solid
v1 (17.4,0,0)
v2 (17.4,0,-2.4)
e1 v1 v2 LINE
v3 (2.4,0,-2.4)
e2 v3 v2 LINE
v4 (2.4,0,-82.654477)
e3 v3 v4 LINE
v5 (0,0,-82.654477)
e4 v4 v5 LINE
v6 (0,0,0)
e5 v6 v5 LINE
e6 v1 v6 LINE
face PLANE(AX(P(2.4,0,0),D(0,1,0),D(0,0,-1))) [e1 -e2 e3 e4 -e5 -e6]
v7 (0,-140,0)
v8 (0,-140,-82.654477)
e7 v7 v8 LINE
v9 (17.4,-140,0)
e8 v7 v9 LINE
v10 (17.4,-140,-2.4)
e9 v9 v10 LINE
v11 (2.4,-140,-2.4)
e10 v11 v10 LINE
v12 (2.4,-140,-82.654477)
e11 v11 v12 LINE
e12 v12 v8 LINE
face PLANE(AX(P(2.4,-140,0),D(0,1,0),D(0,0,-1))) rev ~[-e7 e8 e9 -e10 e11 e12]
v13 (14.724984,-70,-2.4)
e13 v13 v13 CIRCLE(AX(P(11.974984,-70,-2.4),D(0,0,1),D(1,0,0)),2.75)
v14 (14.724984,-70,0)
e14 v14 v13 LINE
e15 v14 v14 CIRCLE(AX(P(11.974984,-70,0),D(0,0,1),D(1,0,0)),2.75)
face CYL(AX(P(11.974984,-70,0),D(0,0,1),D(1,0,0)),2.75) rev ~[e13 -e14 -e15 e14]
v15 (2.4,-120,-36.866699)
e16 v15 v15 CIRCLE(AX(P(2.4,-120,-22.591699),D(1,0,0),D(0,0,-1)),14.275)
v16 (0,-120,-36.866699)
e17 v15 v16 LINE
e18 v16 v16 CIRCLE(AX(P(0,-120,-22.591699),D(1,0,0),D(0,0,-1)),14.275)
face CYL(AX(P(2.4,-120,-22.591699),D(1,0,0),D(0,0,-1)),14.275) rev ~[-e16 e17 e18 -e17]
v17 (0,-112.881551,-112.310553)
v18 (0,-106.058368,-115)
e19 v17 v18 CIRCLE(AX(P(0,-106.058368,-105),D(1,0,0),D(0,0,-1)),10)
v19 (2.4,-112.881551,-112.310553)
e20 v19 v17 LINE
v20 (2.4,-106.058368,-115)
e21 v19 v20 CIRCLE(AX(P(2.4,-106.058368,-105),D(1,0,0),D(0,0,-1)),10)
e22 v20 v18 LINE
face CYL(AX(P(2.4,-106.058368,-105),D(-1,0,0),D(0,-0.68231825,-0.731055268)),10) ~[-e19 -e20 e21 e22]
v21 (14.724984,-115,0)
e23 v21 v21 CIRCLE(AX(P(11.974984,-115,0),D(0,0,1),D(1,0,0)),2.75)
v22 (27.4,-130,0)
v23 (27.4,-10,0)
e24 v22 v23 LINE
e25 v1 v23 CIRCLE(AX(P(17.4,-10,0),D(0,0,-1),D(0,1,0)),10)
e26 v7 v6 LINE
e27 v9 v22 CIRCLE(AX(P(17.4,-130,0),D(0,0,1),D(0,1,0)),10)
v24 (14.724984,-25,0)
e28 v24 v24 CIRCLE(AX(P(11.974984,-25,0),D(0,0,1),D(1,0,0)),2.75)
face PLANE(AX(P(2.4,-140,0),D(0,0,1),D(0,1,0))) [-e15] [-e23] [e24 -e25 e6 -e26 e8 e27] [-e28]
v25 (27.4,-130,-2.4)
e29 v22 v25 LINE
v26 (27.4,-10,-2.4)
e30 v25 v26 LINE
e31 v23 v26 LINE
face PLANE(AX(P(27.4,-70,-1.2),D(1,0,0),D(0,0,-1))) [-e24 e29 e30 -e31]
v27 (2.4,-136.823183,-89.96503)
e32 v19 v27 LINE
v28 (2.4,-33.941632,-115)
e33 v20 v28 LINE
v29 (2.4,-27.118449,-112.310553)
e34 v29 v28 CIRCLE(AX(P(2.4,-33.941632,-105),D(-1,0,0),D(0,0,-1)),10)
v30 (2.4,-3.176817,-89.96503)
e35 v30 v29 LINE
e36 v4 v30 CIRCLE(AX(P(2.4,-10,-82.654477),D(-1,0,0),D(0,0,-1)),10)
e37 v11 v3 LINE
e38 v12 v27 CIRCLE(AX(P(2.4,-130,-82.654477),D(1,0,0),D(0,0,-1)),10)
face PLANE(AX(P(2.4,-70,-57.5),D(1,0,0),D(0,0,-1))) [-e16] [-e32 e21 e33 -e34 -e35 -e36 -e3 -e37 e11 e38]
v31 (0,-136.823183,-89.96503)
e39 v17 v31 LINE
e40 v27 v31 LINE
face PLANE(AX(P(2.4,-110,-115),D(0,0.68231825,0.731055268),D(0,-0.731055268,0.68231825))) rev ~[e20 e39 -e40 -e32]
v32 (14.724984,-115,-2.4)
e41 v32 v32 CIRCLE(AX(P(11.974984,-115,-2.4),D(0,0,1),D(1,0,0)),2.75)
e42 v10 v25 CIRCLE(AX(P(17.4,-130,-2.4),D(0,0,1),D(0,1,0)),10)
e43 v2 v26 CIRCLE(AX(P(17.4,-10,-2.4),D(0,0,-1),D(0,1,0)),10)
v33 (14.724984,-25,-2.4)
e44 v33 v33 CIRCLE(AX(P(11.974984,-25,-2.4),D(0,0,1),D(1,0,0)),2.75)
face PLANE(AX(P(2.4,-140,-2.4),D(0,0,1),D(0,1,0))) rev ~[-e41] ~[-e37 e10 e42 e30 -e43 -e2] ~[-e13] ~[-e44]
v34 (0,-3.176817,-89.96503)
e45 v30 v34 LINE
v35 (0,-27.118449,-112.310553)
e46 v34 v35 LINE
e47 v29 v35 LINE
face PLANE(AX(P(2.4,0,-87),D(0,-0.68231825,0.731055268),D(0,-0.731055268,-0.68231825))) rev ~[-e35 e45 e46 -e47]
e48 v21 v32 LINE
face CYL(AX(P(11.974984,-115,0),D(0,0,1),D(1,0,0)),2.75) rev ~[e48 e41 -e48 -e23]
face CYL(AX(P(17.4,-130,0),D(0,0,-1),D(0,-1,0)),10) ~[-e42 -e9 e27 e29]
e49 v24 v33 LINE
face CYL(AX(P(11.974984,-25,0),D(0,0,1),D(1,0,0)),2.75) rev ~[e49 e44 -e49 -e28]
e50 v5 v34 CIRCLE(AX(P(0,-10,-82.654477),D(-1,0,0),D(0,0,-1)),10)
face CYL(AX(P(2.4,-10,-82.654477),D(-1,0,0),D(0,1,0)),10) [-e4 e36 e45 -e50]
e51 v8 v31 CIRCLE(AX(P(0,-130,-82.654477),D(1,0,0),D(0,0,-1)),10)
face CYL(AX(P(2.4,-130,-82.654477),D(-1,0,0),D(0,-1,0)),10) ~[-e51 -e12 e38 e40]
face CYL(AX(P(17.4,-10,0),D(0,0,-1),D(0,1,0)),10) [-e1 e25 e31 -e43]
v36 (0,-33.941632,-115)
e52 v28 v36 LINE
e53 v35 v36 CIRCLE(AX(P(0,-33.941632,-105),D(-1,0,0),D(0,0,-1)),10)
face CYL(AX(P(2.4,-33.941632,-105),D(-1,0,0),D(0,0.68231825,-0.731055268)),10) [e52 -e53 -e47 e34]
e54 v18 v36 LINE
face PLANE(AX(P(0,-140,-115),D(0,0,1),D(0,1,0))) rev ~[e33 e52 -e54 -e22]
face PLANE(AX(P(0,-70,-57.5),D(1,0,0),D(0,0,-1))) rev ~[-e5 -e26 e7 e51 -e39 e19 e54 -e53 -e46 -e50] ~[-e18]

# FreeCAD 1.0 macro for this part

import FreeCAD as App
import Part
import Sketcher
from FreeCAD import Vector


def edges_at(feature, points):
    """Names of the edges that pass closest to the given points."""
    edges = feature.Shape.Edges
    near = lambda p: min(range(len(edges)), key=lambda i: edges[i].distToShape(Part.Vertex(*p))[0])
    return sorted({f"Edge{near(p) + 1}" for p in points})

doc = App.newDocument("Part")
body = doc.addObject("PartDesign::Body", "Body")

# Sketch on YZ plane
sketch1 = body.newObject("Sketcher::SketchObject", "Sketch")
sketch1.AttachmentSupport = (doc.getObject("YZ_Plane"), [""])
sketch1.MapMode = "FlatFace"
sketch1.addGeometry(Part.LineSegment(Vector(0, 0, 0), Vector(-140, 0, 0)), False)
sketch1.addGeometry(Part.LineSegment(Vector(-140, 0, 0), Vector(-140, -115, 0)), False)
sketch1.addGeometry(Part.LineSegment(Vector(-140, -115, 0), Vector(0, -115, 0)), False)
sketch1.addGeometry(Part.LineSegment(Vector(0, -115, 0), Vector(0, 0, 0)), False)
sketch1.addConstraint(Sketcher.Constraint("Coincident", 0, 2, 1, 1))
sketch1.addConstraint(Sketcher.Constraint("Coincident", 1, 2, 2, 1))
sketch1.addConstraint(Sketcher.Constraint("Coincident", 2, 2, 3, 1))
sketch1.addConstraint(Sketcher.Constraint("Coincident", 3, 2, 0, 1))
sketch1.addConstraint(Sketcher.Constraint("Horizontal", 0))
sketch1.addConstraint(Sketcher.Constraint("Vertical", 1))
sketch1.addConstraint(Sketcher.Constraint("Horizontal", 2))
sketch1.addConstraint(Sketcher.Constraint("Vertical", 3))
sketch1.addConstraint(Sketcher.Constraint("Coincident", 3, 2, -1, 1))
sketch1.addConstraint(Sketcher.Constraint("DistanceX", 0, 2, 0, 1, 140.0))
sketch1.addConstraint(Sketcher.Constraint("DistanceY", 1, 2, 1, 1, 115.0))
pad1 = body.newObject("PartDesign::Pad", "Pad")
pad1.Profile = sketch1
pad1.Length = 2.4

# Sketch on YZ plane
sketch2 = body.newObject("Sketcher::SketchObject", "Sketch001")
sketch2.AttachmentSupport = (doc.getObject("YZ_Plane"), [""])
sketch2.MapMode = "FlatFace"
sketch2.AttachmentOffset = App.Placement(Vector(0, 0, 2.4), App.Rotation())
sketch2.addGeometry(Part.LineSegment(Vector(0, -87, 0), Vector(-30, -115, 0)), False)
sketch2.addGeometry(Part.LineSegment(Vector(-30, -115, 0), Vector(-33, -143, 0)), False)
sketch2.addGeometry(Part.LineSegment(Vector(-33, -143, 0), Vector(15, -143, 0)), False)
sketch2.addGeometry(Part.LineSegment(Vector(15, -143, 0), Vector(0, -87, 0)), False)
sketch2.addGeometry(Part.LineSegment(Vector(-110, -115, 0), Vector(-140, -87, 0)), False)
sketch2.addGeometry(Part.LineSegment(Vector(-140, -87, 0), Vector(-153, -87, 0)), False)
sketch2.addGeometry(Part.LineSegment(Vector(-153, -87, 0), Vector(-153, -136, 0)), False)
sketch2.addGeometry(Part.LineSegment(Vector(-153, -136, 0), Vector(-110, -115, 0)), False)
sketch2.addConstraint(Sketcher.Constraint("Coincident", 0, 2, 1, 1))
sketch2.addConstraint(Sketcher.Constraint("Coincident", 1, 2, 2, 1))
sketch2.addConstraint(Sketcher.Constraint("Coincident", 2, 2, 3, 1))
sketch2.addConstraint(Sketcher.Constraint("Coincident", 3, 2, 0, 1))
sketch2.addConstraint(Sketcher.Constraint("Coincident", 4, 2, 5, 1))
sketch2.addConstraint(Sketcher.Constraint("Coincident", 5, 2, 6, 1))
sketch2.addConstraint(Sketcher.Constraint("Coincident", 6, 2, 7, 1))
sketch2.addConstraint(Sketcher.Constraint("Coincident", 7, 2, 4, 1))
sketch2.addConstraint(Sketcher.Constraint("Horizontal", 2))
sketch2.addConstraint(Sketcher.Constraint("Horizontal", 5))
sketch2.addConstraint(Sketcher.Constraint("Vertical", 6))
sketch2.addConstraint(Sketcher.Constraint("PointOnObject", 3, 2, -2))
sketch2.addConstraint(Sketcher.Constraint("Horizontal", 3, 2, 4, 2))
sketch2.addConstraint(Sketcher.Constraint("Horizontal", 0, 2, 7, 2))
sketch2.addConstraint(Sketcher.Constraint("Equal", 0, 4))
sketch2.addConstraint(Sketcher.Constraint("DistanceX", 0, 2, -1, 1, 30.0))
sketch2.addConstraint(Sketcher.Constraint("DistanceY", 0, 2, -1, 1, 115.0))
sketch2.addConstraint(Sketcher.Constraint("DistanceY", 3, 2, -1, 1, 87.0))
sketch2.addConstraint(Sketcher.Constraint("DistanceX", 4, 2, -1, 1, 140.0))
sketch2.addConstraint(Sketcher.Constraint("DistanceX", 5, 2, 5, 1, 12.66111))
sketch2.addConstraint(Sketcher.Constraint("DistanceY", 1, 2, -1, 1, 142.6162))
sketch2.addConstraint(Sketcher.Constraint("DistanceX", 2, 1, 2, 2, 47.380962))
sketch2.addConstraint(Sketcher.Constraint("DistanceY", 6, 2, 6, 1, 49.310005))
sketch2.addConstraint(Sketcher.Constraint("Distance", 1, 27.729615))
pocket1 = body.newObject("PartDesign::Pocket", "Pocket")
pocket1.Profile = sketch2
pocket1.Type = "ThroughAll"
doc.recompute()

fillet = body.newObject("PartDesign::Fillet", "Fillet")
fillet.Base = (pocket1, edges_at(pocket1, [
    (1.2, 0, -87),
    (1.2, -30, -115),
    (1.2, -110, -115),
    (1.2, -140, -87),
]))
fillet.Radius = 10

# Sketch on YZ plane
sketch3 = body.newObject("Sketcher::SketchObject", "Sketch002")
sketch3.AttachmentSupport = (doc.getObject("YZ_Plane"), [""])
sketch3.MapMode = "FlatFace"
sketch3.AttachmentOffset = App.Placement(Vector(0, 0, 2.4), App.Rotation())
sketch3.addGeometry(Part.LineSegment(Vector(0, 0, 0), Vector(-140, 0, 0)), False)
sketch3.addGeometry(Part.LineSegment(Vector(-140, 0, 0), Vector(-140, -2.4, 0)), False)
sketch3.addGeometry(Part.LineSegment(Vector(-140, -2.4, 0), Vector(0, -2.4, 0)), False)
sketch3.addGeometry(Part.LineSegment(Vector(0, -2.4, 0), Vector(0, 0, 0)), False)
sketch3.addConstraint(Sketcher.Constraint("Coincident", 0, 2, 1, 1))
sketch3.addConstraint(Sketcher.Constraint("Coincident", 1, 2, 2, 1))
sketch3.addConstraint(Sketcher.Constraint("Coincident", 2, 2, 3, 1))
sketch3.addConstraint(Sketcher.Constraint("Coincident", 3, 2, 0, 1))
sketch3.addConstraint(Sketcher.Constraint("Horizontal", 0))
sketch3.addConstraint(Sketcher.Constraint("Vertical", 1))
sketch3.addConstraint(Sketcher.Constraint("Horizontal", 2))
sketch3.addConstraint(Sketcher.Constraint("Vertical", 3))
sketch3.addConstraint(Sketcher.Constraint("Coincident", 3, 2, -1, 1))
sketch3.addConstraint(Sketcher.Constraint("DistanceX", 0, 2, 0, 1, 140.0))
sketch3.addConstraint(Sketcher.Constraint("DistanceY", 1, 2, 1, 1, 2.4))
pad2 = body.newObject("PartDesign::Pad", "Pad001")
pad2.Profile = sketch3
pad2.Length = 25
doc.recompute()

fillet2 = body.newObject("PartDesign::Fillet", "Fillet001")
fillet2.Base = (pad2, edges_at(pad2, [(27.4, -140, -1.2), (27.4, 0, -1.2)]))
fillet2.Radius = 10

# Sketch on XY plane
sketch4 = body.newObject("Sketcher::SketchObject", "Sketch003")
sketch4.AttachmentSupport = (doc.getObject("XY_Plane"), [""])
sketch4.MapMode = "FlatFace"
sketch4.addGeometry(Part.Circle(Vector(12, -70, 0), Vector(0, 0, 1), 2.8), False)
sketch4.addGeometry(Part.Circle(Vector(12, -25, 0), Vector(0, 0, 1), 2.8), False)
sketch4.addGeometry(Part.Circle(Vector(12, -115, 0), Vector(0, 0, 1), 2.8), False)
sketch4.addConstraint(Sketcher.Constraint("Equal", 0, 1))
sketch4.addConstraint(Sketcher.Constraint("Equal", 1, 2))
sketch4.addConstraint(Sketcher.Constraint("Vertical", 0, 3, 1, 3))
sketch4.addConstraint(Sketcher.Constraint("Vertical", 1, 3, 2, 3))
sketch4.addConstraint(Sketcher.Constraint("Diameter", 0, 5.5))
sketch4.addConstraint(Sketcher.Constraint("DistanceY", 0, 3, -1, 1, 70.0))
sketch4.addConstraint(Sketcher.Constraint("DistanceY", 1, 3, -1, 1, 25.0))
sketch4.addConstraint(Sketcher.Constraint("DistanceY", 2, 3, -1, 1, 115.0))
sketch4.addConstraint(Sketcher.Constraint("DistanceX", -1, 1, 0, 3, 11.974984))
pocket2 = body.newObject("PartDesign::Pocket", "Pocket001")
pocket2.Profile = sketch4
pocket2.Type = "ThroughAll"

# Sketch on YZ plane
sketch5 = body.newObject("Sketcher::SketchObject", "Sketch004")
sketch5.AttachmentSupport = (doc.getObject("YZ_Plane"), [""])
sketch5.MapMode = "FlatFace"
sketch5.AttachmentOffset = App.Placement(Vector(0, 0, 2.4), App.Rotation())
sketch5.addGeometry(Part.Circle(Vector(-120, -23, 0), Vector(0, 0, 1), 14), False)
sketch5.addConstraint(Sketcher.Constraint("Diameter", 0, 28.55))
sketch5.addConstraint(Sketcher.Constraint("DistanceX", 0, 3, -1, 1, 120.0))
sketch5.addConstraint(Sketcher.Constraint("DistanceY", 0, 3, -1, 1, 22.591699))
pocket3 = body.newObject("PartDesign::Pocket", "Pocket002")
pocket3.Profile = sketch5
pocket3.Type = "ThroughAll"

doc.recompute()
